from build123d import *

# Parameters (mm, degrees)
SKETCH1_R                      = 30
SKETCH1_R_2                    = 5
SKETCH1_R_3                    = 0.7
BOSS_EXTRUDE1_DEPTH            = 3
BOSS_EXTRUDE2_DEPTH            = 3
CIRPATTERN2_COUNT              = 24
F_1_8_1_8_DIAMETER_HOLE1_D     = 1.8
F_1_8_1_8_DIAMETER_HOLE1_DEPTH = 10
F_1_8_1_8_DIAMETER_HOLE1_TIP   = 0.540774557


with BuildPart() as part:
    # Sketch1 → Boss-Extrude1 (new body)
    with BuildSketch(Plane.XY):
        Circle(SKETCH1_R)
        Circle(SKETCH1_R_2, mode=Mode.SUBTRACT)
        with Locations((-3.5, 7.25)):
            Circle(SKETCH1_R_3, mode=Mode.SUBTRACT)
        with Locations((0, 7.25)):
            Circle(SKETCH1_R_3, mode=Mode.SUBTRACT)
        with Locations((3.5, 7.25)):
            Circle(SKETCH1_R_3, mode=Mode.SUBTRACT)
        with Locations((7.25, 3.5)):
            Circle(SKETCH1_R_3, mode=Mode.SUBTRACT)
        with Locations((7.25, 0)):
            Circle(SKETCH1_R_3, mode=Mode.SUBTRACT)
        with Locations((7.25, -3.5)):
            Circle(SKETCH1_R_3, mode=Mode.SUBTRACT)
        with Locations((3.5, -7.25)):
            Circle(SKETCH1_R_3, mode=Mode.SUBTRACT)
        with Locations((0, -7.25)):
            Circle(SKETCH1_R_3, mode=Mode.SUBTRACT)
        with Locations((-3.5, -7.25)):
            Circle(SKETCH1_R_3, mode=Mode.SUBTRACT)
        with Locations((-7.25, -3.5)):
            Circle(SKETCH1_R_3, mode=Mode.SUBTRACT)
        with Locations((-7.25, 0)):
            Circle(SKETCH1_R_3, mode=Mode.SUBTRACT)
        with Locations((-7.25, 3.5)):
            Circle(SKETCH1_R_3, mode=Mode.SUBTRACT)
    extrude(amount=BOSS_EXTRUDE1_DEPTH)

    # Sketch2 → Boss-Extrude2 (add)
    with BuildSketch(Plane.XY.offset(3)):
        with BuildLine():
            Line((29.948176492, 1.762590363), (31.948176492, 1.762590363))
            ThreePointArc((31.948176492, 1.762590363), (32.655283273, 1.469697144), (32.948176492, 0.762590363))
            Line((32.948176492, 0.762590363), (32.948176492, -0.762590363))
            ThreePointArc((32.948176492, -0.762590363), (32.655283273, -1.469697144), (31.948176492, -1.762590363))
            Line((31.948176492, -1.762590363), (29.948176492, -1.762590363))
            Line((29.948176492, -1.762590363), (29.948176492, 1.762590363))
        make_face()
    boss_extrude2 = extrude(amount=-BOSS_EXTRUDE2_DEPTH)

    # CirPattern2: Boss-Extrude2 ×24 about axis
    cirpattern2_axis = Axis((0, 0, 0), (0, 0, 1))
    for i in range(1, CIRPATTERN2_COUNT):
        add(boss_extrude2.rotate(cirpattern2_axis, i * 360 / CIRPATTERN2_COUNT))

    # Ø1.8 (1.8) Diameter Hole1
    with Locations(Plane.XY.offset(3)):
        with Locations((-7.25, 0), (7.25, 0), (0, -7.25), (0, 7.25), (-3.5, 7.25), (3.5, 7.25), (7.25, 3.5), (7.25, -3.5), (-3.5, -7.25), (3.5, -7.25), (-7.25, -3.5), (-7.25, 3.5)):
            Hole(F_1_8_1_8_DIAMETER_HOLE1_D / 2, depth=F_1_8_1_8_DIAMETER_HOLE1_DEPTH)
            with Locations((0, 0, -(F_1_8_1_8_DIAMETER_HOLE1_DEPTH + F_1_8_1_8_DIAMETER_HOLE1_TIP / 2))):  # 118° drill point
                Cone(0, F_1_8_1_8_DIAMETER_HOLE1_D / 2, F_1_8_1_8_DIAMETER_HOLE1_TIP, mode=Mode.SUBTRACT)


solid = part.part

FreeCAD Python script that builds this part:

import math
import FreeCAD as App
import Part
import Sketcher

doc = App.newDocument("Part")
params = doc.addObject("Spreadsheet::Sheet", "Params")
for row, (alias, value) in enumerate([
    ("sketch1_diameter", "60 mm"),
    ("sketch1_diameter2", "10 mm"),
    ("sketch1_diameter3", "1.4 mm"),
    ("pad1_length", "3 mm"),
    ("sketch2_radius", "1 mm"),
    ("sketch2_width", "2 mm"),
    ("pad2_length", "3 mm"),
    ("sketch3_diameter", "1.8 mm"),
    ("hole_diameter", "1.8 mm"),
    ("hole_depth", "10 mm"),
], start=1):
    params.set(f"A{row}", alias)
    params.set(f"B{row}", "=" + value)
    params.setAlias(f"B{row}", alias)

body = doc.addObject("PartDesign::Body", "Body")

# Sketch on XY plane
sketch1 = body.newObject("Sketcher::SketchObject", "Sketch")
sketch1.AttachmentSupport = (doc.getObject("XY_Plane"), [""])
sketch1.MapMode = "FlatFace"
sketch1.addGeometry([
    Part.Circle(App.Vector(0, 0, 0), App.Vector(0, 0, 1), 30),  # 0
    Part.Circle(App.Vector(-3.5, -7.2, 0), App.Vector(0, 0, 1), 0.7),  # 1
    Part.Circle(App.Vector(-7.2, -3.5, 0), App.Vector(0, 0, 1), 0.7),  # 2
    Part.Circle(App.Vector(0, -7.2, 0), App.Vector(0, 0, 1), 0.7),  # 3
    Part.Circle(App.Vector(3.5, -7.2, 0), App.Vector(0, 0, 1), 0.7),  # 4
    Part.Circle(App.Vector(7.2, -3.5, 0), App.Vector(0, 0, 1), 0.7),  # 5
    Part.Circle(App.Vector(-7.2, 0, 0), App.Vector(0, 0, 1), 0.7),  # 6
    Part.Circle(App.Vector(-7.2, 3.5, 0), App.Vector(0, 0, 1), 0.7),  # 7
    Part.Circle(App.Vector(-3.5, 7.2, 0), App.Vector(0, 0, 1), 0.7),  # 8
    Part.Circle(App.Vector(0, 0, 0), App.Vector(0, 0, 1), 5),  # 9
    Part.Circle(App.Vector(7.2, 0, 0), App.Vector(0, 0, 1), 0.7),  # 10
    Part.Circle(App.Vector(7.2, 3.5, 0), App.Vector(0, 0, 1), 0.7),  # 11
    Part.Circle(App.Vector(0, 7.2, 0), App.Vector(0, 0, 1), 0.7),  # 12
    Part.Circle(App.Vector(3.5, 7.2, 0), App.Vector(0, 0, 1), 0.7),  # 13
], False)
sketch1.addConstraint([
    Sketcher.Constraint("Coincident", 0, 3, -1, 1),
    Sketcher.Constraint("Coincident", 9, 3, -1, 1),
    Sketcher.Constraint("Equal", 1, 2),
    Sketcher.Constraint("Equal", 2, 3),
    Sketcher.Constraint("Equal", 3, 4),
    Sketcher.Constraint("Equal", 4, 5),
    Sketcher.Constraint("Equal", 5, 6),
    Sketcher.Constraint("Equal", 6, 7),
    Sketcher.Constraint("Equal", 7, 8),
    Sketcher.Constraint("Equal", 8, 10),
    Sketcher.Constraint("Equal", 10, 11),
    Sketcher.Constraint("Equal", 11, 12),
    Sketcher.Constraint("Equal", 12, 13),
    Sketcher.Constraint("Symmetric", 5, 3, 7, 3, -1, 1),
    Sketcher.Constraint("Symmetric", 4, 3, 8, 3, -1, 1),
    Sketcher.Constraint("Symmetric", 6, 3, 10, 3, -1, 1),
    Sketcher.Constraint("Symmetric", 2, 3, 11, 3, -1, 1),
    Sketcher.Constraint("Symmetric", 3, 3, 12, 3, -1, 1),
    Sketcher.Constraint("Symmetric", 1, 3, 13, 3, -1, 1),
    Sketcher.Constraint("Symmetric", 1, 3, 4, 3, -2),
    Sketcher.Constraint("Symmetric", 2, 3, 5, 3, -2),
    Sketcher.Constraint("PointOnObject", 3, 3, -2),
    Sketcher.Constraint("PointOnObject", 6, 3, -1),
    Sketcher.Constraint("Horizontal", 1, 3, 3, 3),
    Sketcher.Constraint("Vertical", 2, 3, 6, 3),
    Sketcher.Constraint("Diameter", 0, 60.0),
    Sketcher.Constraint("Diameter", 9, 10.0),
    Sketcher.Constraint("Diameter", 1, 1.4),
    Sketcher.Constraint("DistanceX", 1, 3, 4, 3, 7.0),
    Sketcher.Constraint("DistanceY", 2, 3, 7, 3, 7.0),
    Sketcher.Constraint("DistanceX", 2, 3, 5, 3, 14.5),
    Sketcher.Constraint("DistanceY", 1, 3, 8, 3, 14.5),
])
sketch1.setExpression("Constraints[25]", "Params.sketch1_diameter")
sketch1.setExpression("Constraints[26]", "Params.sketch1_diameter2")
sketch1.setExpression("Constraints[27]", "Params.sketch1_diameter3")
pad1 = body.newObject("PartDesign::Pad", "Pad")
pad1.Profile = sketch1
pad1.setExpression("Length", "Params.pad1_length")

# Sketch on XY plane
sketch2 = body.newObject("Sketcher::SketchObject", "Sketch001")
sketch2.AttachmentSupport = (doc.getObject("XY_Plane"), [""])
sketch2.MapMode = "FlatFace"
sketch2.AttachmentOffset = App.Placement(App.Vector(0, 0, 3), App.Rotation())
sketch2.addGeometry([
    Part.LineSegment(App.Vector(31.9, 1.8, 0), App.Vector(29.9, 1.8, 0)),  # 0
    Part.LineSegment(App.Vector(29.9, 1.8, 0), App.Vector(29.9, -1.8, 0)),  # 1
    Part.LineSegment(App.Vector(29.9, -1.8, 0), App.Vector(31.9, -1.8, 0)),  # 2
    Part.ArcOfCircle(Part.Circle(App.Vector(31.9, -0.8, 0), App.Vector(0, 0, 1), 1), math.radians(-90), math.radians(0)),  # 3
    Part.LineSegment(App.Vector(32.9, -0.8, 0), App.Vector(32.9, 0.8, 0)),  # 4
    Part.ArcOfCircle(Part.Circle(App.Vector(31.9, 0.8, 0), App.Vector(0, 0, 1), 1), math.radians(0), math.radians(90)),  # 5
], False)
sketch2.addConstraint([
    Sketcher.Constraint("Coincident", 0, 2, 1, 1),
    Sketcher.Constraint("Coincident", 1, 2, 2, 1),
    Sketcher.Constraint("Tangent", 2, 2, 3, 1),
    Sketcher.Constraint("Tangent", 3, 2, 4, 1),
    Sketcher.Constraint("Tangent", 4, 2, 5, 1),
    Sketcher.Constraint("Tangent", 5, 2, 0, 1),
    Sketcher.Constraint("Horizontal", 0),
    Sketcher.Constraint("Vertical", 1),
    Sketcher.Constraint("Horizontal", 2),
    Sketcher.Constraint("Vertical", 4),
    Sketcher.Constraint("Equal", 3, 5),
    Sketcher.Constraint("Radius", 3, 1.0),
    Sketcher.Constraint("DistanceX", 0, 2, 0, 1, 2.0),
    Sketcher.Constraint("DistanceY", 1, 2, 1, 1, 3.525181),
    Sketcher.Constraint("DistanceY", 3, 3, -1, 1, 0.76259),
    Sketcher.Constraint("DistanceX", -1, 1, 3, 3, 31.948176),
])
sketch2.setExpression("Constraints[11]", "Params.sketch2_radius")
sketch2.setExpression("Constraints[12]", "Params.sketch2_width")
pad2 = body.newObject("PartDesign::Pad", "Pad001")
pad2.Profile = sketch2
pad2.setExpression("Length", "Params.pad2_length")
pad2.Reversed = True
doc.recompute()

polarpattern = body.newObject("PartDesign::PolarPattern", "PolarPattern")
polarpattern.Originals = [pad2]
polarpattern.Axis = (doc.getObject("Z_Axis"), [""])
polarpattern.Angle = 360
polarpattern.Occurrences = 24
body.Tip = polarpattern

# Sketch on XY plane
sketch3 = body.newObject("Sketcher::SketchObject", "Sketch002")
sketch3.AttachmentSupport = (doc.getObject("XY_Plane"), [""])
sketch3.MapMode = "FlatFace"
sketch3.AttachmentOffset = App.Placement(App.Vector(0, 0, 3), App.Rotation())
sketch3.addGeometry([
    Part.Circle(App.Vector(-7.2, 0, 0), App.Vector(0, 0, 1), 0.9),  # 0
    Part.Circle(App.Vector(7.2, 0, 0), App.Vector(0, 0, 1), 0.9),  # 1
    Part.Circle(App.Vector(0, -7.2, 0), App.Vector(0, 0, 1), 0.9),  # 2
    Part.Circle(App.Vector(0, 7.2, 0), App.Vector(0, 0, 1), 0.9),  # 3
    Part.Circle(App.Vector(-3.5, 7.2, 0), App.Vector(0, 0, 1), 0.9),  # 4
    Part.Circle(App.Vector(3.5, 7.2, 0), App.Vector(0, 0, 1), 0.9),  # 5
    Part.Circle(App.Vector(7.2, 3.5, 0), App.Vector(0, 0, 1), 0.9),  # 6
    Part.Circle(App.Vector(7.2, -3.5, 0), App.Vector(0, 0, 1), 0.9),  # 7
    Part.Circle(App.Vector(-3.5, -7.2, 0), App.Vector(0, 0, 1), 0.9),  # 8
    Part.Circle(App.Vector(3.5, -7.2, 0), App.Vector(0, 0, 1), 0.9),  # 9
    Part.Circle(App.Vector(-7.2, -3.5, 0), App.Vector(0, 0, 1), 0.9),  # 10
    Part.Circle(App.Vector(-7.2, 3.5, 0), App.Vector(0, 0, 1), 0.9),  # 11
], False)
sketch3.addConstraint([
    Sketcher.Constraint("Equal", 0, 1),
    Sketcher.Constraint("Equal", 1, 2),
    Sketcher.Constraint("Equal", 2, 3),
    Sketcher.Constraint("Equal", 3, 4),
    Sketcher.Constraint("Equal", 4, 5),
    Sketcher.Constraint("Equal", 5, 6),
    Sketcher.Constraint("Equal", 6, 7),
    Sketcher.Constraint("Equal", 7, 8),
    Sketcher.Constraint("Equal", 8, 9),
    Sketcher.Constraint("Equal", 9, 10),
    Sketcher.Constraint("Equal", 10, 11),
    Sketcher.Constraint("Symmetric", 0, 3, 1, 3, -1, 1),
    Sketcher.Constraint("Symmetric", 2, 3, 3, 3, -1, 1),
    Sketcher.Constraint("Symmetric", 5, 3, 8, 3, -1, 1),
    Sketcher.Constraint("Symmetric", 4, 3, 9, 3, -1, 1),
    Sketcher.Constraint("Symmetric", 6, 3, 10, 3, -1, 1),
    Sketcher.Constraint("Symmetric", 7, 3, 11, 3, -1, 1),
    Sketcher.Constraint("Symmetric", 4, 3, 5, 3, -2),
    Sketcher.Constraint("Symmetric", 7, 3, 10, 3, -2),
    Sketcher.Constraint("PointOnObject", 0, 3, -1),
    Sketcher.Constraint("PointOnObject", 2, 3, -2),
    Sketcher.Constraint("Horizontal", 3, 3, 4, 3),
    Sketcher.Constraint("Vertical", 1, 3, 6, 3),
    Sketcher.Constraint("Diameter", 0, 1.8),
    Sketcher.Constraint("DistanceX", 4, 3, 5, 3, 7.0),
    Sketcher.Constraint("DistanceY", 7, 3, 6, 3, 7.0),
    Sketcher.Constraint("DistanceX", 0, 3, 1, 3, 14.5),
    Sketcher.Constraint("DistanceY", 2, 3, 3, 3, 14.5),
])
sketch3.setExpression("Constraints[23]", "Params.sketch3_diameter")
doc.recompute()
hole = body.newObject("PartDesign::Hole", "Hole")
hole.Profile = sketch3
hole.ThreadType = "None"
hole.setExpression("Diameter", "Params.hole_diameter")
hole.DepthType = "Dimension"
hole.setExpression("Depth", "Params.hole_depth")
hole.DrillPoint = "Angled"
hole.DrillPointAngle = 118

doc.recompute()
